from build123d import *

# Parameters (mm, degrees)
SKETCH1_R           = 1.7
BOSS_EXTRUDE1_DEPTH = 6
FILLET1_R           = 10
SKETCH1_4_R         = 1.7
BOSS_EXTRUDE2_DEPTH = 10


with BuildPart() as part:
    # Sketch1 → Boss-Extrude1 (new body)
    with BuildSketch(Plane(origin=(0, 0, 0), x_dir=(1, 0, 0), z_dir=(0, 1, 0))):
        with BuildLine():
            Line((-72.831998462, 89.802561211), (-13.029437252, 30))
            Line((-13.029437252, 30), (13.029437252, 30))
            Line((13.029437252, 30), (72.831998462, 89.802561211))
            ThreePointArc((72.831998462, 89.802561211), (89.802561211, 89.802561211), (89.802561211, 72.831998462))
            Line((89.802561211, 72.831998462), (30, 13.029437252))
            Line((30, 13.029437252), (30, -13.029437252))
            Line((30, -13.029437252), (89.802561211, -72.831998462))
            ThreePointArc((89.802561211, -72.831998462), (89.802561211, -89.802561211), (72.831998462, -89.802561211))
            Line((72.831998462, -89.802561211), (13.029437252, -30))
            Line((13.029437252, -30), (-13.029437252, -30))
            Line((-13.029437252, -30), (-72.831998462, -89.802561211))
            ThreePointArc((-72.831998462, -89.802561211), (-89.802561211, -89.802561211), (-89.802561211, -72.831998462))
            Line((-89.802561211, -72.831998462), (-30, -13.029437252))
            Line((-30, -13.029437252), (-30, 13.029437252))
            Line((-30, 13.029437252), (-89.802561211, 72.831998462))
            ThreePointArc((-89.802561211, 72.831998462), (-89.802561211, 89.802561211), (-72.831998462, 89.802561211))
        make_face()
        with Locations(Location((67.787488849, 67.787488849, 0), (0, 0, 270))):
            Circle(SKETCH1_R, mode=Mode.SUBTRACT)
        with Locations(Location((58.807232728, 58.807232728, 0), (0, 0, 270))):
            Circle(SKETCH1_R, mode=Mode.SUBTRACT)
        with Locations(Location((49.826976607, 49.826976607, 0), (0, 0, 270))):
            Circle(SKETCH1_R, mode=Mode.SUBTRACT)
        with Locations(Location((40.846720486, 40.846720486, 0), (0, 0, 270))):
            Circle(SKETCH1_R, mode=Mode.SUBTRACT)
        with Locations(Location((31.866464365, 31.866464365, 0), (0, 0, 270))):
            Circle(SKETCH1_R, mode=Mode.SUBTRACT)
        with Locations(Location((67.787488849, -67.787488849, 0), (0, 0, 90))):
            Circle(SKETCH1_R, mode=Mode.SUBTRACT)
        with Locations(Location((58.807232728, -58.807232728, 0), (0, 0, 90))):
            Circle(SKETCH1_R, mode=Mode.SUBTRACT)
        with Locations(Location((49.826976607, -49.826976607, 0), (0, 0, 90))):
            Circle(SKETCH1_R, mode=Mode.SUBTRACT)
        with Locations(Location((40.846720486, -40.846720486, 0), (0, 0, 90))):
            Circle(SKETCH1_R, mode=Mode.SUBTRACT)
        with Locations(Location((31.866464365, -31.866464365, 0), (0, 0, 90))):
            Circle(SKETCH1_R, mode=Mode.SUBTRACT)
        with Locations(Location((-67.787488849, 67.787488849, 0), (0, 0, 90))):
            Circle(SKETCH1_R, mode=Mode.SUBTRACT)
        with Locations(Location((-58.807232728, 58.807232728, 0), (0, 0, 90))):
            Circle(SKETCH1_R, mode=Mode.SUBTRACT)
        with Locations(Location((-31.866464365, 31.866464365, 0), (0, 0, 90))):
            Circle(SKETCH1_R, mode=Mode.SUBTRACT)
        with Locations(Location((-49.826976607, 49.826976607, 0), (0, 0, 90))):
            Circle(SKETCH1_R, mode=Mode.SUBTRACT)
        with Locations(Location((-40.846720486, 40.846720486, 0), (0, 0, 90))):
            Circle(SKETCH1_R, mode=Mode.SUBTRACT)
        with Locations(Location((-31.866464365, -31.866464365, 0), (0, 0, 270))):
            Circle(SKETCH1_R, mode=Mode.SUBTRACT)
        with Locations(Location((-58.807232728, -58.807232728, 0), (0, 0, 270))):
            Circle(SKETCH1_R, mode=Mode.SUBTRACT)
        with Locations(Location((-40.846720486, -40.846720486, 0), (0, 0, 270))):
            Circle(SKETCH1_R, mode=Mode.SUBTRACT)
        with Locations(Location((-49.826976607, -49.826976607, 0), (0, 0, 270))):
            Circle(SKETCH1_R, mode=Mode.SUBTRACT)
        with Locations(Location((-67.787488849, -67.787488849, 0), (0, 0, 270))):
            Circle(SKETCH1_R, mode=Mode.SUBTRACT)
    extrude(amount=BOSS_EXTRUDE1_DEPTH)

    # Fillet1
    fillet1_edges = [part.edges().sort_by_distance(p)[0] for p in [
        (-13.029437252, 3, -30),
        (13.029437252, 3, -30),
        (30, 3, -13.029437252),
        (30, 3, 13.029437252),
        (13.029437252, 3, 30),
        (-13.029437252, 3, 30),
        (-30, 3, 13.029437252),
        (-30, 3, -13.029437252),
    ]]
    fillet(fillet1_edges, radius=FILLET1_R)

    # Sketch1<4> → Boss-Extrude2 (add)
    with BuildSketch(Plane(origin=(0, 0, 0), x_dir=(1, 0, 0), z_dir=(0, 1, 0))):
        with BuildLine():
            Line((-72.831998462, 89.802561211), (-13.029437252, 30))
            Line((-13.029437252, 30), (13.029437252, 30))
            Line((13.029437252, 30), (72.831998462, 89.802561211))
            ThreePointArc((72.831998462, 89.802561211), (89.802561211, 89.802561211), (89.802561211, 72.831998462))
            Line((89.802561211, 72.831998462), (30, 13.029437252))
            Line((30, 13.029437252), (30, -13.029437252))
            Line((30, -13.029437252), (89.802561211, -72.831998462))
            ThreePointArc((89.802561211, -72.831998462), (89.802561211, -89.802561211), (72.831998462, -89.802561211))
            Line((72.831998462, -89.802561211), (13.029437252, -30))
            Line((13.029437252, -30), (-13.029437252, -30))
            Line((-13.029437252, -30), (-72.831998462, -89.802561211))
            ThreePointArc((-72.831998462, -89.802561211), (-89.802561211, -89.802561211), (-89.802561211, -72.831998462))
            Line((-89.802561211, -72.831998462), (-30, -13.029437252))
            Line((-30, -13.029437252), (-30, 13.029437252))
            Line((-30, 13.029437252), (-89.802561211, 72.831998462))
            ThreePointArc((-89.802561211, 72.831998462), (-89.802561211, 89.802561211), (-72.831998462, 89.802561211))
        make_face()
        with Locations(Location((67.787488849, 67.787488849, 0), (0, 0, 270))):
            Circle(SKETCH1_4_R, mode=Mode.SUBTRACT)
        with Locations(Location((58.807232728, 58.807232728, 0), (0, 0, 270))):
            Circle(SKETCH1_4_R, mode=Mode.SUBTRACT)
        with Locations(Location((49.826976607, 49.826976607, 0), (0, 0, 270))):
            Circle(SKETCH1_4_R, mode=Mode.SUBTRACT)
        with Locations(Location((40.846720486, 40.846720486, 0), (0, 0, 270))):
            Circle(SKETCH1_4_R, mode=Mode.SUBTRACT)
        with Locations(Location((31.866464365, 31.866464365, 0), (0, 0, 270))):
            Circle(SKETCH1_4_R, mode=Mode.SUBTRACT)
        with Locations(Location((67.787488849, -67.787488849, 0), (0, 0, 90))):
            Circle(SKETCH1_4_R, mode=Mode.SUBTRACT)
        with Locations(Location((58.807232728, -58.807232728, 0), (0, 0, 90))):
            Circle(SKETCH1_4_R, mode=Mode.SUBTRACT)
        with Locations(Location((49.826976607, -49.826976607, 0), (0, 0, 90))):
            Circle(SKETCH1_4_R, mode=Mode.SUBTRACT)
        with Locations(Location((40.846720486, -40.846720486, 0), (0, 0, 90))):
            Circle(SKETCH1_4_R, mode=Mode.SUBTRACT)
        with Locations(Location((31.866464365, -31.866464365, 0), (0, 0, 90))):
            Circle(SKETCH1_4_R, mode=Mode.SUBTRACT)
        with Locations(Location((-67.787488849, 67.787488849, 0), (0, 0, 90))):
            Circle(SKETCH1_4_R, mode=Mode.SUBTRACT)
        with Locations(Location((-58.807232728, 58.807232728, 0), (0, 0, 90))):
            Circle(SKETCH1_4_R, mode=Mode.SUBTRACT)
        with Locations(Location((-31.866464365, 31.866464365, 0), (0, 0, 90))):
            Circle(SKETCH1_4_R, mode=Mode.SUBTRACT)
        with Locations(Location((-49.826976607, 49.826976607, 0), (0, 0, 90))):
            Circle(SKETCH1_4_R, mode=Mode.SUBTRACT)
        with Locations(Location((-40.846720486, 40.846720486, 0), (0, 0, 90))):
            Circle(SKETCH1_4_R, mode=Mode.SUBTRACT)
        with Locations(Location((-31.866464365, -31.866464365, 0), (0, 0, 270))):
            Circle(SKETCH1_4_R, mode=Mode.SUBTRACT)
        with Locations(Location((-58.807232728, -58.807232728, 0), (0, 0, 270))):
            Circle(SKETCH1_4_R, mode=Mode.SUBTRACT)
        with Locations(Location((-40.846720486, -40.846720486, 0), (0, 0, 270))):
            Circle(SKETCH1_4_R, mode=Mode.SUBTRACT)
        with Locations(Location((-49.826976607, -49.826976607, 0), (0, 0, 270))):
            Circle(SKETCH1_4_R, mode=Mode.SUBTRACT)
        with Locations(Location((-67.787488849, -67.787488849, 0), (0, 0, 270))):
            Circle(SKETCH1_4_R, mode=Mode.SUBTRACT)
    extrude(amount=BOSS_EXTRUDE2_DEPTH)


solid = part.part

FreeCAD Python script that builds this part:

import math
import FreeCAD as App
import Part
import Sketcher
from FreeCAD import Vector


def edges_at(feature, points):
    """Names of the edges that pass closest to the given points."""
    edges = feature.Shape.Edges
    near = lambda p: min(range(len(edges)), key=lambda i: edges[i].distToShape(Part.Vertex(*p))[0])
    return sorted({f"Edge{near(p) + 1}" for p in points})

doc = App.newDocument("Part")
body = doc.addObject("PartDesign::Body", "Body")

# Sketch on XZ plane
sketch1 = body.newObject("Sketcher::SketchObject", "Sketch")
sketch1.AttachmentSupport = (doc.getObject("XZ_Plane"), [""])
sketch1.MapMode = "FlatFace"
sketch1.addGeometry([
    Part.LineSegment(Vector(-13, -30, 0), Vector(-72.8, -89.8, 0)),  # 0
    Part.ArcOfCircle(Part.Circle(Vector(-81.3, -81.3, 0), Vector(0, 0, 1), 12), math.radians(135), math.radians(315)),  # 1
    Part.LineSegment(Vector(-89.8, -72.8, 0), Vector(-30, -13, 0)),  # 2
    Part.LineSegment(Vector(-30, -13, 0), Vector(-30, 13, 0)),  # 3
    Part.LineSegment(Vector(-30, 13, 0), Vector(-89.8, 72.8, 0)),  # 4
    Part.ArcOfCircle(Part.Circle(Vector(-81.3, 81.3, 0), Vector(0, 0, 1), 12), math.radians(45), math.radians(225)),  # 5
    Part.LineSegment(Vector(-72.8, 89.8, 0), Vector(-13, 30, 0)),  # 6
    Part.LineSegment(Vector(-13, 30, 0), Vector(13, 30, 0)),  # 7
    Part.LineSegment(Vector(13, 30, 0), Vector(72.8, 89.8, 0)),  # 8
    Part.ArcOfCircle(Part.Circle(Vector(81.3, 81.3, 0), Vector(0, 0, 1), 12), math.radians(-45), math.radians(135)),  # 9
    Part.LineSegment(Vector(89.8, 72.8, 0), Vector(30, 13, 0)),  # 10
    Part.LineSegment(Vector(30, 13, 0), Vector(30, -13, 0)),  # 11
    Part.LineSegment(Vector(30, -13, 0), Vector(89.8, -72.8, 0)),  # 12
    Part.ArcOfCircle(Part.Circle(Vector(81.3, -81.3, 0), Vector(0, 0, 1), 12), math.radians(-135), math.radians(45)),  # 13
    Part.LineSegment(Vector(72.8, -89.8, 0), Vector(13, -30, 0)),  # 14
    Part.LineSegment(Vector(13, -30, 0), Vector(-13, -30, 0)),  # 15
    Part.Circle(Vector(67.8, 67.8, 0), Vector(0, 0, 1), 1.7),  # 16
    Part.Circle(Vector(58.8, 58.8, 0), Vector(0, 0, 1), 1.7),  # 17
    Part.Circle(Vector(49.8, 49.8, 0), Vector(0, 0, 1), 1.7),  # 18
    Part.Circle(Vector(40.8, 40.8, 0), Vector(0, 0, 1), 1.7),  # 19
    Part.Circle(Vector(31.9, 31.9, 0), Vector(0, 0, 1), 1.7),  # 20
    Part.Circle(Vector(-67.8, 67.8, 0), Vector(0, 0, 1), 1.7),  # 21
    Part.Circle(Vector(-58.8, 58.8, 0), Vector(0, 0, 1), 1.7),  # 22
    Part.Circle(Vector(-49.8, 49.8, 0), Vector(0, 0, 1), 1.7),  # 23
    Part.Circle(Vector(-40.8, 40.8, 0), Vector(0, 0, 1), 1.7),  # 24
    Part.Circle(Vector(-31.9, 31.9, 0), Vector(0, 0, 1), 1.7),  # 25
    Part.Circle(Vector(31.9, -31.9, 0), Vector(0, 0, 1), 1.7),  # 26
    Part.Circle(Vector(40.8, -40.8, 0), Vector(0, 0, 1), 1.7),  # 27
    Part.Circle(Vector(49.8, -49.8, 0), Vector(0, 0, 1), 1.7),  # 28
    Part.Circle(Vector(58.8, -58.8, 0), Vector(0, 0, 1), 1.7),  # 29
    Part.Circle(Vector(67.8, -67.8, 0), Vector(0, 0, 1), 1.7),  # 30
    Part.Circle(Vector(-31.9, -31.9, 0), Vector(0, 0, 1), 1.7),  # 31
    Part.Circle(Vector(-40.8, -40.8, 0), Vector(0, 0, 1), 1.7),  # 32
    Part.Circle(Vector(-49.8, -49.8, 0), Vector(0, 0, 1), 1.7),  # 33
    Part.Circle(Vector(-58.8, -58.8, 0), Vector(0, 0, 1), 1.7),  # 34
    Part.Circle(Vector(-67.8, -67.8, 0), Vector(0, 0, 1), 1.7),  # 35
], False)
sketch1.addConstraint([
    Sketcher.Constraint("Tangent", 0, 2, 1, 2),
    Sketcher.Constraint("Tangent", 1, 1, 2, 1),
    Sketcher.Constraint("Coincident", 2, 2, 3, 1),
    Sketcher.Constraint("Coincident", 3, 2, 4, 1),
    Sketcher.Constraint("Tangent", 4, 2, 5, 2),
    Sketcher.Constraint("Tangent", 5, 1, 6, 1),
    Sketcher.Constraint("Coincident", 6, 2, 7, 1),
    Sketcher.Constraint("Coincident", 7, 2, 8, 1),
    Sketcher.Constraint("Tangent", 8, 2, 9, 2),
    Sketcher.Constraint("Tangent", 9, 1, 10, 1),
    Sketcher.Constraint("Coincident", 10, 2, 11, 1),
    Sketcher.Constraint("Coincident", 11, 2, 12, 1),
    Sketcher.Constraint("Tangent", 12, 2, 13, 2),
    Sketcher.Constraint("Tangent", 13, 1, 14, 1),
    Sketcher.Constraint("Coincident", 14, 2, 15, 1),
    Sketcher.Constraint("Coincident", 15, 2, 0, 1),
    Sketcher.Constraint("Vertical", 3),
    Sketcher.Constraint("Horizontal", 7),
    Sketcher.Constraint("Vertical", 11),
    Sketcher.Constraint("Horizontal", 15),
    Sketcher.Constraint("Equal", 1, 5),
    Sketcher.Constraint("Equal", 5, 9),
    Sketcher.Constraint("Equal", 9, 13),
    Sketcher.Constraint("Equal", 16, 17),
    Sketcher.Constraint("Equal", 17, 18),
    Sketcher.Constraint("Equal", 18, 19),
    Sketcher.Constraint("Equal", 19, 20),
    Sketcher.Constraint("Equal", 20, 21),
    Sketcher.Constraint("Equal", 21, 22),
    Sketcher.Constraint("Equal", 22, 23),
    Sketcher.Constraint("Equal", 23, 24),
    Sketcher.Constraint("Equal", 24, 25),
    Sketcher.Constraint("Equal", 25, 26),
    Sketcher.Constraint("Equal", 26, 27),
    Sketcher.Constraint("Equal", 27, 28),
    Sketcher.Constraint("Equal", 28, 29),
    Sketcher.Constraint("Equal", 29, 30),
    Sketcher.Constraint("Equal", 30, 31),
    Sketcher.Constraint("Equal", 31, 32),
    Sketcher.Constraint("Equal", 32, 33),
    Sketcher.Constraint("Equal", 33, 34),
    Sketcher.Constraint("Equal", 34, 35),
    Sketcher.Constraint("Symmetric", 1, 3, 9, 3, -1, 1),
    Sketcher.Constraint("Symmetric", 5, 3, 13, 3, -1, 1),
    Sketcher.Constraint("Symmetric", 25, 3, 26, 3, -1, 1),
    Sketcher.Constraint("Symmetric", 24, 3, 27, 3, -1, 1),
    Sketcher.Constraint("Symmetric", 23, 3, 28, 3, -1, 1),
    Sketcher.Constraint("Symmetric", 22, 3, 29, 3, -1, 1),
    Sketcher.Constraint("Symmetric", 21, 3, 30, 3, -1, 1),
    Sketcher.Constraint("Symmetric", 20, 3, 31, 3, -1, 1),
    Sketcher.Constraint("Symmetric", 19, 3, 32, 3, -1, 1),
    Sketcher.Constraint("Symmetric", 18, 3, 33, 3, -1, 1),
    Sketcher.Constraint("Symmetric", 17, 3, 34, 3, -1, 1),
    Sketcher.Constraint("Symmetric", 16, 3, 35, 3, -1, 1),
    Sketcher.Constraint("Symmetric", 2, 2, 10, 2, -1, 1),
    Sketcher.Constraint("Symmetric", 6, 2, 14, 2, -1, 1),
    Sketcher.Constraint("Symmetric", 5, 3, 9, 3, -2),
    Sketcher.Constraint("Symmetric", 16, 3, 21, 3, -2),
    Sketcher.Constraint("Symmetric", 17, 3, 22, 3, -2),
    Sketcher.Constraint("Symmetric", 18, 3, 23, 3, -2),
    Sketcher.Constraint("Symmetric", 19, 3, 24, 3, -2),
    Sketcher.Constraint("Symmetric", 20, 3, 25, 3, -2),
    Sketcher.Constraint("Parallel", 0, 2),
    Sketcher.Constraint("Perpendicular", 2, 4),
    Sketcher.Constraint("Parallel", 4, 6),
    Sketcher.Constraint("Perpendicular", 6, 8),
    Sketcher.Constraint("Perpendicular", 10, 12),
    Sketcher.Constraint("Horizontal", 5, 1, 8, 2),
    Sketcher.Constraint("Equal", 15, 3),
    Sketcher.Constraint("Equal", 0, 2),
    Sketcher.Constraint("Radius", 1, 12.0),
    Sketcher.Constraint("Diameter", 16, 3.4),
    Sketcher.Constraint("DistanceX", 2, 2, -1, 1, 30.0),
    Sketcher.Constraint("DistanceX", 0, 2, -1, 1, 72.831998),
    Sketcher.Constraint("DistanceX", 5, 3, 19, 3, 122.164),
    Sketcher.Constraint("DistanceY", 2, 2, 25, 3, 44.895902),
    Sketcher.Constraint("DistanceX", 6, 2, 20, 3, 44.895902),
    Sketcher.Constraint("DistanceX", -1, 1, 16, 3, 67.787489),
    Sketcher.Constraint("DistanceY", -1, 1, 16, 3, 67.787489),
    Sketcher.Constraint("DistanceY", -1, 1, 19, 3, 40.84672),
    Sketcher.Constraint("DistanceX", 20, 3, 17, 3, 26.940768),
    Sketcher.Constraint("DistanceY", 20, 3, 17, 3, 26.940768),
    Sketcher.Constraint("DistanceX", 22, 3, 18, 3, 108.634209),
    Sketcher.Constraint("DistanceY", 26, 3, 18, 3, 81.693441),
])
pad1 = body.newObject("PartDesign::Pad", "Pad")
pad1.Profile = sketch1
pad1.Length = 6
pad1.Reversed = True
doc.recompute()

fillet = body.newObject("PartDesign::Fillet", "Fillet")
fillet.Base = (pad1, edges_at(pad1, [
    (-13.029, 3, -30),
    (13.029, 3, -30),
    (30, 3, -13.029),
    (30, 3, 13.029),
    (13.029, 3, 30),
    (-13.029, 3, 30),
    (-30, 3, 13.029),
    (-30, 3, -13.029),
]))
fillet.Radius = 10

# Sketch on XZ plane
sketch2 = body.newObject("Sketcher::SketchObject", "Sketch001")
sketch2.AttachmentSupport = (doc.getObject("XZ_Plane"), [""])
sketch2.MapMode = "FlatFace"
sketch2.addGeometry([
    Part.LineSegment(Vector(-13, -30, 0), Vector(-72.8, -89.8, 0)),  # 0
    Part.ArcOfCircle(Part.Circle(Vector(-81.3, -81.3, 0), Vector(0, 0, 1), 12), math.radians(135), math.radians(315)),  # 1
    Part.LineSegment(Vector(-89.8, -72.8, 0), Vector(-30, -13, 0)),  # 2
    Part.LineSegment(Vector(-30, -13, 0), Vector(-30, 13, 0)),  # 3
    Part.LineSegment(Vector(-30, 13, 0), Vector(-89.8, 72.8, 0)),  # 4
    Part.ArcOfCircle(Part.Circle(Vector(-81.3, 81.3, 0), Vector(0, 0, 1), 12), math.radians(45), math.radians(225)),  # 5
    Part.LineSegment(Vector(-72.8, 89.8, 0), Vector(-13, 30, 0)),  # 6
    Part.LineSegment(Vector(-13, 30, 0), Vector(13, 30, 0)),  # 7
    Part.LineSegment(Vector(13, 30, 0), Vector(72.8, 89.8, 0)),  # 8
    Part.ArcOfCircle(Part.Circle(Vector(81.3, 81.3, 0), Vector(0, 0, 1), 12), math.radians(-45), math.radians(135)),  # 9
    Part.LineSegment(Vector(89.8, 72.8, 0), Vector(30, 13, 0)),  # 10
    Part.LineSegment(Vector(30, 13, 0), Vector(30, -13, 0)),  # 11
    Part.LineSegment(Vector(30, -13, 0), Vector(89.8, -72.8, 0)),  # 12
    Part.ArcOfCircle(Part.Circle(Vector(81.3, -81.3, 0), Vector(0, 0, 1), 12), math.radians(-135), math.radians(45)),  # 13
    Part.LineSegment(Vector(72.8, -89.8, 0), Vector(13, -30, 0)),  # 14
    Part.LineSegment(Vector(13, -30, 0), Vector(-13, -30, 0)),  # 15
    Part.Circle(Vector(67.8, 67.8, 0), Vector(0, 0, 1), 1.7),  # 16
    Part.Circle(Vector(58.8, 58.8, 0), Vector(0, 0, 1), 1.7),  # 17
    Part.Circle(Vector(49.8, 49.8, 0), Vector(0, 0, 1), 1.7),  # 18
    Part.Circle(Vector(40.8, 40.8, 0), Vector(0, 0, 1), 1.7),  # 19
    Part.Circle(Vector(31.9, 31.9, 0), Vector(0, 0, 1), 1.7),  # 20
    Part.Circle(Vector(-67.8, 67.8, 0), Vector(0, 0, 1), 1.7),  # 21
    Part.Circle(Vector(-58.8, 58.8, 0), Vector(0, 0, 1), 1.7),  # 22
    Part.Circle(Vector(-49.8, 49.8, 0), Vector(0, 0, 1), 1.7),  # 23
    Part.Circle(Vector(-40.8, 40.8, 0), Vector(0, 0, 1), 1.7),  # 24
    Part.Circle(Vector(-31.9, 31.9, 0), Vector(0, 0, 1), 1.7),  # 25
    Part.Circle(Vector(31.9, -31.9, 0), Vector(0, 0, 1), 1.7),  # 26
    Part.Circle(Vector(40.8, -40.8, 0), Vector(0, 0, 1), 1.7),  # 27
    Part.Circle(Vector(49.8, -49.8, 0), Vector(0, 0, 1), 1.7),  # 28
    Part.Circle(Vector(58.8, -58.8, 0), Vector(0, 0, 1), 1.7),  # 29
    Part.Circle(Vector(67.8, -67.8, 0), Vector(0, 0, 1), 1.7),  # 30
    Part.Circle(Vector(-31.9, -31.9, 0), Vector(0, 0, 1), 1.7),  # 31
    Part.Circle(Vector(-40.8, -40.8, 0), Vector(0, 0, 1), 1.7),  # 32
    Part.Circle(Vector(-49.8, -49.8, 0), Vector(0, 0, 1), 1.7),  # 33
    Part.Circle(Vector(-58.8, -58.8, 0), Vector(0, 0, 1), 1.7),  # 34
    Part.Circle(Vector(-67.8, -67.8, 0), Vector(0, 0, 1), 1.7),  # 35
], False)
sketch2.addConstraint([
    Sketcher.Constraint("Tangent", 0, 2, 1, 2),
    Sketcher.Constraint("Tangent", 1, 1, 2, 1),
    Sketcher.Constraint("Coincident", 2, 2, 3, 1),
    Sketcher.Constraint("Coincident", 3, 2, 4, 1),
    Sketcher.Constraint("Tangent", 4, 2, 5, 2),
    Sketcher.Constraint("Tangent", 5, 1, 6, 1),
    Sketcher.Constraint("Coincident", 6, 2, 7, 1),
    Sketcher.Constraint("Coincident", 7, 2, 8, 1),
    Sketcher.Constraint("Tangent", 8, 2, 9, 2),
    Sketcher.Constraint("Tangent", 9, 1, 10, 1),
    Sketcher.Constraint("Coincident", 10, 2, 11, 1),
    Sketcher.Constraint("Coincident", 11, 2, 12, 1),
    Sketcher.Constraint("Tangent", 12, 2, 13, 2),
    Sketcher.Constraint("Tangent", 13, 1, 14, 1),
    Sketcher.Constraint("Coincident", 14, 2, 15, 1),
    Sketcher.Constraint("Coincident", 15, 2, 0, 1),
    Sketcher.Constraint("Vertical", 3),
    Sketcher.Constraint("Horizontal", 7),
    Sketcher.Constraint("Vertical", 11),
    Sketcher.Constraint("Horizontal", 15),
    Sketcher.Constraint("Equal", 1, 5),
    Sketcher.Constraint("Equal", 5, 9),
    Sketcher.Constraint("Equal", 9, 13),
    Sketcher.Constraint("Equal", 16, 17),
    Sketcher.Constraint("Equal", 17, 18),
    Sketcher.Constraint("Equal", 18, 19),
    Sketcher.Constraint("Equal", 19, 20),
    Sketcher.Constraint("Equal", 20, 21),
    Sketcher.Constraint("Equal", 21, 22),
    Sketcher.Constraint("Equal", 22, 23),
    Sketcher.Constraint("Equal", 23, 24),
    Sketcher.Constraint("Equal", 24, 25),
    Sketcher.Constraint("Equal", 25, 26),
    Sketcher.Constraint("Equal", 26, 27),
    Sketcher.Constraint("Equal", 27, 28),
    Sketcher.Constraint("Equal", 28, 29),
    Sketcher.Constraint("Equal", 29, 30),
    Sketcher.Constraint("Equal", 30, 31),
    Sketcher.Constraint("Equal", 31, 32),
    Sketcher.Constraint("Equal", 32, 33),
    Sketcher.Constraint("Equal", 33, 34),
    Sketcher.Constraint("Equal", 34, 35),
    Sketcher.Constraint("Symmetric", 1, 3, 9, 3, -1, 1),
    Sketcher.Constraint("Symmetric", 5, 3, 13, 3, -1, 1),
    Sketcher.Constraint("Symmetric", 25, 3, 26, 3, -1, 1),
    Sketcher.Constraint("Symmetric", 24, 3, 27, 3, -1, 1),
    Sketcher.Constraint("Symmetric", 23, 3, 28, 3, -1, 1),
    Sketcher.Constraint("Symmetric", 22, 3, 29, 3, -1, 1),
    Sketcher.Constraint("Symmetric", 21, 3, 30, 3, -1, 1),
    Sketcher.Constraint("Symmetric", 20, 3, 31, 3, -1, 1),
    Sketcher.Constraint("Symmetric", 19, 3, 32, 3, -1, 1),
    Sketcher.Constraint("Symmetric", 18, 3, 33, 3, -1, 1),
    Sketcher.Constraint("Symmetric", 17, 3, 34, 3, -1, 1),
    Sketcher.Constraint("Symmetric", 16, 3, 35, 3, -1, 1),
    Sketcher.Constraint("Symmetric", 2, 2, 10, 2, -1, 1),
    Sketcher.Constraint("Symmetric", 6, 2, 14, 2, -1, 1),
    Sketcher.Constraint("Symmetric", 5, 3, 9, 3, -2),
    Sketcher.Constraint("Symmetric", 16, 3, 21, 3, -2),
    Sketcher.Constraint("Symmetric", 17, 3, 22, 3, -2),
    Sketcher.Constraint("Symmetric", 18, 3, 23, 3, -2),
    Sketcher.Constraint("Symmetric", 19, 3, 24, 3, -2),
    Sketcher.Constraint("Symmetric", 20, 3, 25, 3, -2),
    Sketcher.Constraint("Parallel", 0, 2),
    Sketcher.Constraint("Perpendicular", 2, 4),
    Sketcher.Constraint("Parallel", 4, 6),
    Sketcher.Constraint("Perpendicular", 6, 8),
    Sketcher.Constraint("Perpendicular", 10, 12),
    Sketcher.Constraint("Horizontal", 5, 1, 8, 2),
    Sketcher.Constraint("Equal", 15, 3),
    Sketcher.Constraint("Equal", 0, 2),
    Sketcher.Constraint("Radius", 1, 12.0),
    Sketcher.Constraint("Diameter", 16, 3.4),
    Sketcher.Constraint("DistanceX", 2, 2, -1, 1, 30.0),
    Sketcher.Constraint("DistanceX", 0, 2, -1, 1, 72.831998),
    Sketcher.Constraint("DistanceX", 5, 3, 19, 3, 122.164),
    Sketcher.Constraint("DistanceY", 2, 2, 25, 3, 44.895902),
    Sketcher.Constraint("DistanceX", 6, 2, 20, 3, 44.895902),
    Sketcher.Constraint("DistanceX", -1, 1, 16, 3, 67.787489),
    Sketcher.Constraint("DistanceY", -1, 1, 16, 3, 67.787489),
    Sketcher.Constraint("DistanceY", -1, 1, 19, 3, 40.84672),
    Sketcher.Constraint("DistanceX", 20, 3, 17, 3, 26.940768),
    Sketcher.Constraint("DistanceY", 20, 3, 17, 3, 26.940768),
    Sketcher.Constraint("DistanceX", 22, 3, 18, 3, 108.634209),
    Sketcher.Constraint("DistanceY", 26, 3, 18, 3, 81.693441),
])
pad2 = body.newObject("PartDesign::Pad", "Pad001")
pad2.Profile = sketch2
pad2.Length = 10
pad2.Reversed = True

doc.recompute()
